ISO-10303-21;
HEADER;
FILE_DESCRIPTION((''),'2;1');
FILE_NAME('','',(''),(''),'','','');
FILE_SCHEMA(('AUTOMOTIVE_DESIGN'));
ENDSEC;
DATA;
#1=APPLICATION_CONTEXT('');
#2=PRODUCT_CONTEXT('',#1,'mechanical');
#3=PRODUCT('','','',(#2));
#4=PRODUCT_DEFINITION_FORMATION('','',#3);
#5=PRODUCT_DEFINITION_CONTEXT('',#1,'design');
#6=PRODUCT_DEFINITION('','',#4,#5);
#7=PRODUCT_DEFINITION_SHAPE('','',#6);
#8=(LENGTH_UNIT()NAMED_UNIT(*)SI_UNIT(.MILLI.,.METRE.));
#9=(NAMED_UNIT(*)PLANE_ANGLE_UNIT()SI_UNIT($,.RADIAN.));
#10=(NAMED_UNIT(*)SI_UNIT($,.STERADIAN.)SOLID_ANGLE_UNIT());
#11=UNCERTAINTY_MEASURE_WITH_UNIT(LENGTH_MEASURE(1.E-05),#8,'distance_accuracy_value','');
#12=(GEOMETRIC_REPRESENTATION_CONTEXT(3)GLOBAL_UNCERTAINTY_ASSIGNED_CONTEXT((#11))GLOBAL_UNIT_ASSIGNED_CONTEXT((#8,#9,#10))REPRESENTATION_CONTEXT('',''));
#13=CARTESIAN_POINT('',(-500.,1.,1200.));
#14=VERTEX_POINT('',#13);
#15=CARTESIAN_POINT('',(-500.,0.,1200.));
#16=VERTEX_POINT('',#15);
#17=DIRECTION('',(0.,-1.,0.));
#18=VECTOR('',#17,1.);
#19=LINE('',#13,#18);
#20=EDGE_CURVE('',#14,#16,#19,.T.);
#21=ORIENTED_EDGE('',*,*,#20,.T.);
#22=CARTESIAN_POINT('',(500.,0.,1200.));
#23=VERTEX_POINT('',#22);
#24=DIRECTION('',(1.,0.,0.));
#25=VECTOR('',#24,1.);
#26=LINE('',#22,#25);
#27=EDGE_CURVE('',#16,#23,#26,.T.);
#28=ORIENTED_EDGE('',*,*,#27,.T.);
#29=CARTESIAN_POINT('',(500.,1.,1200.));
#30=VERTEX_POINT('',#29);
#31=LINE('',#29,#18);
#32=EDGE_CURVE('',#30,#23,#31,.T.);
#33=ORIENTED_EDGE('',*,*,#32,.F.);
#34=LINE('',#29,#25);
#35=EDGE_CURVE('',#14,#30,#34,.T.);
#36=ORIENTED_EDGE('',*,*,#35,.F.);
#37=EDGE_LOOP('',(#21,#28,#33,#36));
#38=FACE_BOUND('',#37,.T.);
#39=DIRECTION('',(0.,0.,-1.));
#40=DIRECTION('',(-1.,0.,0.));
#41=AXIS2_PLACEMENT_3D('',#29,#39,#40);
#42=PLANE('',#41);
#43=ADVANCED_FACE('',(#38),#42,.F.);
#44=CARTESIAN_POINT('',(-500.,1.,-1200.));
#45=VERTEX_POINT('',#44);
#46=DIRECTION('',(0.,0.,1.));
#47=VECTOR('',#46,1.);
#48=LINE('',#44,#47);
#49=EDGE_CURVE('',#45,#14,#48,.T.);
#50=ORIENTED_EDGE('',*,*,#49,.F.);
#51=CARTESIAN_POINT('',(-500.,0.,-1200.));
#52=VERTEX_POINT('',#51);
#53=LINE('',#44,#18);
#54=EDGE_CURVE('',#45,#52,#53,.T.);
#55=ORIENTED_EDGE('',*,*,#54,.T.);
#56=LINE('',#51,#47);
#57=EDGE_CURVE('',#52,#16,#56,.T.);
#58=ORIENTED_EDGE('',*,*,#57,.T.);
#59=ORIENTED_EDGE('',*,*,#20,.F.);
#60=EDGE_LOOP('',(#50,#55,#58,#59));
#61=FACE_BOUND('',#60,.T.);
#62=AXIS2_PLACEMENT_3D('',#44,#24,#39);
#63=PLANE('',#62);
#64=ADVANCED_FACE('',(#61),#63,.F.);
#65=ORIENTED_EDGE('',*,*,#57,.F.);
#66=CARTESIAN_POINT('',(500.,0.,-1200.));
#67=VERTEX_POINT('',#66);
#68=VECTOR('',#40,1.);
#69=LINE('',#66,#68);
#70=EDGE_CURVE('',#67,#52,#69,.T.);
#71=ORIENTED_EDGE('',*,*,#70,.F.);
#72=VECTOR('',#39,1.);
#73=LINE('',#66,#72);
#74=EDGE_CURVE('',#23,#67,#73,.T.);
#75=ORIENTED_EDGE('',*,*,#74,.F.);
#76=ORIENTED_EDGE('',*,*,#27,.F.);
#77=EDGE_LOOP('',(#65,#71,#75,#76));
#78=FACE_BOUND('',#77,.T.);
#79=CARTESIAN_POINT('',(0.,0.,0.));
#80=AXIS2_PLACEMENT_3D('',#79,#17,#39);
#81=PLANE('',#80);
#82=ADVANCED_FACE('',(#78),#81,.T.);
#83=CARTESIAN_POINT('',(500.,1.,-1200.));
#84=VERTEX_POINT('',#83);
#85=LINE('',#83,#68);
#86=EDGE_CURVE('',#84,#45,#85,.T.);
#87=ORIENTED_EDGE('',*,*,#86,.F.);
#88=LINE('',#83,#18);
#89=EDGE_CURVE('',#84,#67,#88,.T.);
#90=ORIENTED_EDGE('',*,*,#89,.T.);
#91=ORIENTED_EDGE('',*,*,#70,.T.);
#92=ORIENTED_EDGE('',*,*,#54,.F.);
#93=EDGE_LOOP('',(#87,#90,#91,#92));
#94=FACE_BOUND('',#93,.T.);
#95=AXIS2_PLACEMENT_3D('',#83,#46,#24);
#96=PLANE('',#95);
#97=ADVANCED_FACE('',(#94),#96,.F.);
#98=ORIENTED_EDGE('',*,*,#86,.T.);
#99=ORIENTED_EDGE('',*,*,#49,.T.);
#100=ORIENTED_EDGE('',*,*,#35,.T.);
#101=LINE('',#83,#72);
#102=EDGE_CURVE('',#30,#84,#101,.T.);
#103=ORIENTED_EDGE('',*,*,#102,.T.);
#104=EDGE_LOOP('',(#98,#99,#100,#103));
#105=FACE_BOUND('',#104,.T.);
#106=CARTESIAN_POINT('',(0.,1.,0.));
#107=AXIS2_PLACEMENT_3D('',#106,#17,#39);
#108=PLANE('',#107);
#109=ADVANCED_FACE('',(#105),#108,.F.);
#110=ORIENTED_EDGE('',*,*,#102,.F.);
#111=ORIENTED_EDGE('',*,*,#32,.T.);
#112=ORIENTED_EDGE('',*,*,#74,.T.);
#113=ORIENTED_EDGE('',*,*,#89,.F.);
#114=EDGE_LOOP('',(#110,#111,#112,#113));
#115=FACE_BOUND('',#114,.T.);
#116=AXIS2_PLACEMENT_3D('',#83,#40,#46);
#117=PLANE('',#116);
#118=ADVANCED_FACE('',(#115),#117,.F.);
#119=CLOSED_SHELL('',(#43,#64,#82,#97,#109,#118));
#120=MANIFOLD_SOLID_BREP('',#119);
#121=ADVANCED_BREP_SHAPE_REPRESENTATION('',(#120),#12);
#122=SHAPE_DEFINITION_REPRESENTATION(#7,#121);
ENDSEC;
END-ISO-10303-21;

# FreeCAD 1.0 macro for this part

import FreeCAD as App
import Part
import Sketcher

V = App.Vector

doc = App.newDocument("Part")
body = doc.addObject("PartDesign::Body", "Body")

# Sketch on XZ plane
sketch1 = body.newObject("Sketcher::SketchObject", "Sketch")
sketch1.AttachmentSupport = (doc.getObject("XZ_Plane"), [""])
sketch1.MapMode = "FlatFace"
sketch1.addGeometry([
    Part.LineSegment(V(-500, -1200, 0), V(-500, 1200, 0)),
    Part.LineSegment(V(-500, 1200, 0), V(500, 1200, 0)),
    Part.LineSegment(V(500, 1200, 0), V(500, -1200, 0)),
    Part.LineSegment(V(500, -1200, 0), V(-500, -1200, 0)),
], False)
sketch1.addConstraint([
    Sketcher.Constraint("Coincident", 0, 2, 1, 1),
    Sketcher.Constraint("Coincident", 1, 2, 2, 1),
    Sketcher.Constraint("Coincident", 2, 2, 3, 1),
    Sketcher.Constraint("Coincident", 3, 2, 0, 1),
    Sketcher.Constraint("Vertical", 0),
    Sketcher.Constraint("Horizontal", 1),
    Sketcher.Constraint("Vertical", 2),
    Sketcher.Constraint("Horizontal", 3),
    Sketcher.Constraint("Symmetric", 0, 2, 2, 2, -1, 1),
    Sketcher.Constraint("DistanceX", 1, 1, 1, 2, 1000.0),
    Sketcher.Constraint("DistanceY", 0, 1, 0, 2, 2400.0),
])
pad1 = body.newObject("PartDesign::Pad", "Pad")
pad1.Profile = sketch1
pad1.Length = 1
pad1.Reversed = True

doc.recompute()
